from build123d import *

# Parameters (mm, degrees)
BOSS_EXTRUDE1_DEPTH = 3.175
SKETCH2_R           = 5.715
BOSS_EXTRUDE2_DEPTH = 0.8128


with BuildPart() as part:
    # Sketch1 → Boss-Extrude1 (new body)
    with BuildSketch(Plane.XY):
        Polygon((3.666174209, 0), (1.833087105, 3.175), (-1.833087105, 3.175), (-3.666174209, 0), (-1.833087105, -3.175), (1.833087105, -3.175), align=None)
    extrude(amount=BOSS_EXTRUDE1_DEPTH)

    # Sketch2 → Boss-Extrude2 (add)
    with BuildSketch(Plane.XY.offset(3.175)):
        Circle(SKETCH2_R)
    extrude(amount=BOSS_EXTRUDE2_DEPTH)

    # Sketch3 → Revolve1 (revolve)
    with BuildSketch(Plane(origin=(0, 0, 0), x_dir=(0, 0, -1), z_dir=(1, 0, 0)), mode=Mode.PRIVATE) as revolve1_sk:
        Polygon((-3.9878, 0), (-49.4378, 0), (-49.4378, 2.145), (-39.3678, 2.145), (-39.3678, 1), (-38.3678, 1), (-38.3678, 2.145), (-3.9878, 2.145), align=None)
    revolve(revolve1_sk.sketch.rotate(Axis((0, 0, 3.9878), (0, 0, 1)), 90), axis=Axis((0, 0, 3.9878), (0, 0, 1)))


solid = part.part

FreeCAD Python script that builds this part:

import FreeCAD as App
import Part
import Sketcher
Q = App.Units.Quantity

doc = App.newDocument("Part")
body = doc.addObject("PartDesign::Body", "Body")

sketch1 = body.newObject("Sketcher::SketchObject", "Sketch")
sketch1.AttachmentSupport = (doc.getObject("XY_Plane"), [""])
sketch1.MapMode = "FlatFace"
sketch1.addGeometry(Part.LineSegment(App.Vector(3.666174, 0, 0), App.Vector(1.833087, 3.175, 0)), False)
sketch1.addGeometry(Part.LineSegment(App.Vector(1.833087, 3.175, 0), App.Vector(-1.833087, 3.175, 0)), False)
sketch1.addGeometry(Part.LineSegment(App.Vector(-1.833087, 3.175, 0), App.Vector(-3.666174, 0, 0)), False)
sketch1.addGeometry(Part.LineSegment(App.Vector(-3.666174, 0, 0), App.Vector(-1.833087, -3.175, 0)), False)
sketch1.addGeometry(Part.LineSegment(App.Vector(-1.833087, -3.175, 0), App.Vector(1.833087, -3.175, 0)), False)
sketch1.addGeometry(Part.LineSegment(App.Vector(1.833087, -3.175, 0), App.Vector(3.666174, 0, 0)), False)
sketch1.addConstraint(Sketcher.Constraint("Coincident", 0, 2, 1, 1))
sketch1.addConstraint(Sketcher.Constraint("Coincident", 1, 2, 2, 1))
sketch1.addConstraint(Sketcher.Constraint("Coincident", 2, 2, 3, 1))
sketch1.addConstraint(Sketcher.Constraint("Coincident", 3, 2, 4, 1))
sketch1.addConstraint(Sketcher.Constraint("Coincident", 4, 2, 5, 1))
sketch1.addConstraint(Sketcher.Constraint("Coincident", 5, 2, 0, 1))
sketch1.addConstraint(Sketcher.Constraint("Horizontal", 1))
sketch1.addConstraint(Sketcher.Constraint("Horizontal", 4))
sketch1.addConstraint(Sketcher.Constraint("Symmetric", 0, 2, 3, 2, -1, 1))
sketch1.addConstraint(Sketcher.Constraint("Symmetric", 2, 2, 5, 2, -1, 1))
sketch1.addConstraint(Sketcher.Constraint("PointOnObject", 2, 2, -1))
sketch1.addConstraint(Sketcher.Constraint("Parallel", 2, 5))
sketch1.addConstraint(Sketcher.Constraint("Vertical", 1, 2, 3, 2))
sketch1.addConstraint(Sketcher.Constraint("Angle", 0, Q("120 deg")))
sketch1.addConstraint(Sketcher.Constraint("DistanceY", 3, 2, 1, 2, Q("0.25 in")))
sketch1.addConstraint(Sketcher.Constraint("DistanceX", 1, 2, 1, 1, 3.666174))
pad1 = body.newObject("PartDesign::Pad", "Pad")
pad1.Profile = sketch1
pad1.Length = Q("0.125 in")

sketch2 = body.newObject("Sketcher::SketchObject", "Sketch001")
sketch2.AttachmentSupport = (doc.getObject("XY_Plane"), [""])
sketch2.MapMode = "FlatFace"
sketch2.AttachmentOffset = App.Placement(App.Vector(0, 0, 0.125 * 25.4), App.Rotation())
sketch2.addGeometry(Part.Circle(App.Vector(0, 0, 0), App.Vector(0, 0, 1), 5.715), False)
sketch2.addConstraint(Sketcher.Constraint("Coincident", 0, 3, -1, 1))
sketch2.addConstraint(Sketcher.Constraint("Diameter", 0, Q("0.45 in")))
pad2 = body.newObject("PartDesign::Pad", "Pad001")
pad2.Profile = sketch2
pad2.Length = Q("0.032 in")

sketch3 = body.newObject("Sketcher::SketchObject", "Sketch002")
sketch3.AttachmentSupport = (doc.getObject("YZ_Plane"), [""])
sketch3.MapMode = "FlatFace"
sketch3.addGeometry(Part.LineSegment(App.Vector(0, 49.4378, 0), App.Vector(0, 3.9878, 0)), False)
sketch3.addGeometry(Part.LineSegment(App.Vector(0, 3.9878, 0), App.Vector(2.145, 3.9878, 0)), False)
sketch3.addGeometry(Part.LineSegment(App.Vector(2.145, 3.9878, 0), App.Vector(2.145, 38.3678, 0)), False)
sketch3.addGeometry(Part.LineSegment(App.Vector(2.145, 38.3678, 0), App.Vector(1, 38.3678, 0)), False)
sketch3.addGeometry(Part.LineSegment(App.Vector(1, 38.3678, 0), App.Vector(1, 39.3678, 0)), False)
sketch3.addGeometry(Part.LineSegment(App.Vector(1, 39.3678, 0), App.Vector(2.145, 39.3678, 0)), False)
sketch3.addGeometry(Part.LineSegment(App.Vector(2.145, 39.3678, 0), App.Vector(2.145, 49.4378, 0)), False)
sketch3.addGeometry(Part.LineSegment(App.Vector(2.145, 49.4378, 0), App.Vector(0, 49.4378, 0)), False)
sketch3.addConstraint(Sketcher.Constraint("Coincident", 0, 2, 1, 1))
sketch3.addConstraint(Sketcher.Constraint("Coincident", 1, 2, 2, 1))
sketch3.addConstraint(Sketcher.Constraint("Coincident", 2, 2, 3, 1))
sketch3.addConstraint(Sketcher.Constraint("Coincident", 3, 2, 4, 1))
sketch3.addConstraint(Sketcher.Constraint("Coincident", 4, 2, 5, 1))
sketch3.addConstraint(Sketcher.Constraint("Coincident", 5, 2, 6, 1))
sketch3.addConstraint(Sketcher.Constraint("Coincident", 6, 2, 7, 1))
sketch3.addConstraint(Sketcher.Constraint("Coincident", 7, 2, 0, 1))
sketch3.addConstraint(Sketcher.Constraint("Vertical", 0))
sketch3.addConstraint(Sketcher.Constraint("Horizontal", 1))
sketch3.addConstraint(Sketcher.Constraint("Vertical", 2))
sketch3.addConstraint(Sketcher.Constraint("Horizontal", 3))
sketch3.addConstraint(Sketcher.Constraint("Vertical", 4))
sketch3.addConstraint(Sketcher.Constraint("Horizontal", 5))
sketch3.addConstraint(Sketcher.Constraint("Vertical", 6))
sketch3.addConstraint(Sketcher.Constraint("Horizontal", 7))
sketch3.addConstraint(Sketcher.Constraint("PointOnObject", 0, 2, -2))
sketch3.addConstraint(Sketcher.Constraint("Vertical", 2, 2, 5, 2))
sketch3.addConstraint(Sketcher.Constraint("DistanceY", -1, 1, 0, 2, Q("0.157 in")))
sketch3.addConstraint(Sketcher.Constraint("DistanceX", 1, 1, 1, 2, 2.145))
sketch3.addConstraint(Sketcher.Constraint("DistanceX", 3, 2, 3, 1, 1.145))
sketch3.addConstraint(Sketcher.Constraint("DistanceY", 0, 2, 0, 1, 45.45))
sketch3.addConstraint(Sketcher.Constraint("DistanceY", 2, 1, 2, 2, 34.38))
sketch3.addConstraint(Sketcher.Constraint("DistanceY", 4, 1, 4, 2, 1.0))
revolution = body.newObject("PartDesign::Revolution", "Revolution")
revolution.Profile = sketch3
revolution.ReferenceAxis = (sketch3, ["V_Axis"])
revolution.Angle = 360

doc.recompute()
